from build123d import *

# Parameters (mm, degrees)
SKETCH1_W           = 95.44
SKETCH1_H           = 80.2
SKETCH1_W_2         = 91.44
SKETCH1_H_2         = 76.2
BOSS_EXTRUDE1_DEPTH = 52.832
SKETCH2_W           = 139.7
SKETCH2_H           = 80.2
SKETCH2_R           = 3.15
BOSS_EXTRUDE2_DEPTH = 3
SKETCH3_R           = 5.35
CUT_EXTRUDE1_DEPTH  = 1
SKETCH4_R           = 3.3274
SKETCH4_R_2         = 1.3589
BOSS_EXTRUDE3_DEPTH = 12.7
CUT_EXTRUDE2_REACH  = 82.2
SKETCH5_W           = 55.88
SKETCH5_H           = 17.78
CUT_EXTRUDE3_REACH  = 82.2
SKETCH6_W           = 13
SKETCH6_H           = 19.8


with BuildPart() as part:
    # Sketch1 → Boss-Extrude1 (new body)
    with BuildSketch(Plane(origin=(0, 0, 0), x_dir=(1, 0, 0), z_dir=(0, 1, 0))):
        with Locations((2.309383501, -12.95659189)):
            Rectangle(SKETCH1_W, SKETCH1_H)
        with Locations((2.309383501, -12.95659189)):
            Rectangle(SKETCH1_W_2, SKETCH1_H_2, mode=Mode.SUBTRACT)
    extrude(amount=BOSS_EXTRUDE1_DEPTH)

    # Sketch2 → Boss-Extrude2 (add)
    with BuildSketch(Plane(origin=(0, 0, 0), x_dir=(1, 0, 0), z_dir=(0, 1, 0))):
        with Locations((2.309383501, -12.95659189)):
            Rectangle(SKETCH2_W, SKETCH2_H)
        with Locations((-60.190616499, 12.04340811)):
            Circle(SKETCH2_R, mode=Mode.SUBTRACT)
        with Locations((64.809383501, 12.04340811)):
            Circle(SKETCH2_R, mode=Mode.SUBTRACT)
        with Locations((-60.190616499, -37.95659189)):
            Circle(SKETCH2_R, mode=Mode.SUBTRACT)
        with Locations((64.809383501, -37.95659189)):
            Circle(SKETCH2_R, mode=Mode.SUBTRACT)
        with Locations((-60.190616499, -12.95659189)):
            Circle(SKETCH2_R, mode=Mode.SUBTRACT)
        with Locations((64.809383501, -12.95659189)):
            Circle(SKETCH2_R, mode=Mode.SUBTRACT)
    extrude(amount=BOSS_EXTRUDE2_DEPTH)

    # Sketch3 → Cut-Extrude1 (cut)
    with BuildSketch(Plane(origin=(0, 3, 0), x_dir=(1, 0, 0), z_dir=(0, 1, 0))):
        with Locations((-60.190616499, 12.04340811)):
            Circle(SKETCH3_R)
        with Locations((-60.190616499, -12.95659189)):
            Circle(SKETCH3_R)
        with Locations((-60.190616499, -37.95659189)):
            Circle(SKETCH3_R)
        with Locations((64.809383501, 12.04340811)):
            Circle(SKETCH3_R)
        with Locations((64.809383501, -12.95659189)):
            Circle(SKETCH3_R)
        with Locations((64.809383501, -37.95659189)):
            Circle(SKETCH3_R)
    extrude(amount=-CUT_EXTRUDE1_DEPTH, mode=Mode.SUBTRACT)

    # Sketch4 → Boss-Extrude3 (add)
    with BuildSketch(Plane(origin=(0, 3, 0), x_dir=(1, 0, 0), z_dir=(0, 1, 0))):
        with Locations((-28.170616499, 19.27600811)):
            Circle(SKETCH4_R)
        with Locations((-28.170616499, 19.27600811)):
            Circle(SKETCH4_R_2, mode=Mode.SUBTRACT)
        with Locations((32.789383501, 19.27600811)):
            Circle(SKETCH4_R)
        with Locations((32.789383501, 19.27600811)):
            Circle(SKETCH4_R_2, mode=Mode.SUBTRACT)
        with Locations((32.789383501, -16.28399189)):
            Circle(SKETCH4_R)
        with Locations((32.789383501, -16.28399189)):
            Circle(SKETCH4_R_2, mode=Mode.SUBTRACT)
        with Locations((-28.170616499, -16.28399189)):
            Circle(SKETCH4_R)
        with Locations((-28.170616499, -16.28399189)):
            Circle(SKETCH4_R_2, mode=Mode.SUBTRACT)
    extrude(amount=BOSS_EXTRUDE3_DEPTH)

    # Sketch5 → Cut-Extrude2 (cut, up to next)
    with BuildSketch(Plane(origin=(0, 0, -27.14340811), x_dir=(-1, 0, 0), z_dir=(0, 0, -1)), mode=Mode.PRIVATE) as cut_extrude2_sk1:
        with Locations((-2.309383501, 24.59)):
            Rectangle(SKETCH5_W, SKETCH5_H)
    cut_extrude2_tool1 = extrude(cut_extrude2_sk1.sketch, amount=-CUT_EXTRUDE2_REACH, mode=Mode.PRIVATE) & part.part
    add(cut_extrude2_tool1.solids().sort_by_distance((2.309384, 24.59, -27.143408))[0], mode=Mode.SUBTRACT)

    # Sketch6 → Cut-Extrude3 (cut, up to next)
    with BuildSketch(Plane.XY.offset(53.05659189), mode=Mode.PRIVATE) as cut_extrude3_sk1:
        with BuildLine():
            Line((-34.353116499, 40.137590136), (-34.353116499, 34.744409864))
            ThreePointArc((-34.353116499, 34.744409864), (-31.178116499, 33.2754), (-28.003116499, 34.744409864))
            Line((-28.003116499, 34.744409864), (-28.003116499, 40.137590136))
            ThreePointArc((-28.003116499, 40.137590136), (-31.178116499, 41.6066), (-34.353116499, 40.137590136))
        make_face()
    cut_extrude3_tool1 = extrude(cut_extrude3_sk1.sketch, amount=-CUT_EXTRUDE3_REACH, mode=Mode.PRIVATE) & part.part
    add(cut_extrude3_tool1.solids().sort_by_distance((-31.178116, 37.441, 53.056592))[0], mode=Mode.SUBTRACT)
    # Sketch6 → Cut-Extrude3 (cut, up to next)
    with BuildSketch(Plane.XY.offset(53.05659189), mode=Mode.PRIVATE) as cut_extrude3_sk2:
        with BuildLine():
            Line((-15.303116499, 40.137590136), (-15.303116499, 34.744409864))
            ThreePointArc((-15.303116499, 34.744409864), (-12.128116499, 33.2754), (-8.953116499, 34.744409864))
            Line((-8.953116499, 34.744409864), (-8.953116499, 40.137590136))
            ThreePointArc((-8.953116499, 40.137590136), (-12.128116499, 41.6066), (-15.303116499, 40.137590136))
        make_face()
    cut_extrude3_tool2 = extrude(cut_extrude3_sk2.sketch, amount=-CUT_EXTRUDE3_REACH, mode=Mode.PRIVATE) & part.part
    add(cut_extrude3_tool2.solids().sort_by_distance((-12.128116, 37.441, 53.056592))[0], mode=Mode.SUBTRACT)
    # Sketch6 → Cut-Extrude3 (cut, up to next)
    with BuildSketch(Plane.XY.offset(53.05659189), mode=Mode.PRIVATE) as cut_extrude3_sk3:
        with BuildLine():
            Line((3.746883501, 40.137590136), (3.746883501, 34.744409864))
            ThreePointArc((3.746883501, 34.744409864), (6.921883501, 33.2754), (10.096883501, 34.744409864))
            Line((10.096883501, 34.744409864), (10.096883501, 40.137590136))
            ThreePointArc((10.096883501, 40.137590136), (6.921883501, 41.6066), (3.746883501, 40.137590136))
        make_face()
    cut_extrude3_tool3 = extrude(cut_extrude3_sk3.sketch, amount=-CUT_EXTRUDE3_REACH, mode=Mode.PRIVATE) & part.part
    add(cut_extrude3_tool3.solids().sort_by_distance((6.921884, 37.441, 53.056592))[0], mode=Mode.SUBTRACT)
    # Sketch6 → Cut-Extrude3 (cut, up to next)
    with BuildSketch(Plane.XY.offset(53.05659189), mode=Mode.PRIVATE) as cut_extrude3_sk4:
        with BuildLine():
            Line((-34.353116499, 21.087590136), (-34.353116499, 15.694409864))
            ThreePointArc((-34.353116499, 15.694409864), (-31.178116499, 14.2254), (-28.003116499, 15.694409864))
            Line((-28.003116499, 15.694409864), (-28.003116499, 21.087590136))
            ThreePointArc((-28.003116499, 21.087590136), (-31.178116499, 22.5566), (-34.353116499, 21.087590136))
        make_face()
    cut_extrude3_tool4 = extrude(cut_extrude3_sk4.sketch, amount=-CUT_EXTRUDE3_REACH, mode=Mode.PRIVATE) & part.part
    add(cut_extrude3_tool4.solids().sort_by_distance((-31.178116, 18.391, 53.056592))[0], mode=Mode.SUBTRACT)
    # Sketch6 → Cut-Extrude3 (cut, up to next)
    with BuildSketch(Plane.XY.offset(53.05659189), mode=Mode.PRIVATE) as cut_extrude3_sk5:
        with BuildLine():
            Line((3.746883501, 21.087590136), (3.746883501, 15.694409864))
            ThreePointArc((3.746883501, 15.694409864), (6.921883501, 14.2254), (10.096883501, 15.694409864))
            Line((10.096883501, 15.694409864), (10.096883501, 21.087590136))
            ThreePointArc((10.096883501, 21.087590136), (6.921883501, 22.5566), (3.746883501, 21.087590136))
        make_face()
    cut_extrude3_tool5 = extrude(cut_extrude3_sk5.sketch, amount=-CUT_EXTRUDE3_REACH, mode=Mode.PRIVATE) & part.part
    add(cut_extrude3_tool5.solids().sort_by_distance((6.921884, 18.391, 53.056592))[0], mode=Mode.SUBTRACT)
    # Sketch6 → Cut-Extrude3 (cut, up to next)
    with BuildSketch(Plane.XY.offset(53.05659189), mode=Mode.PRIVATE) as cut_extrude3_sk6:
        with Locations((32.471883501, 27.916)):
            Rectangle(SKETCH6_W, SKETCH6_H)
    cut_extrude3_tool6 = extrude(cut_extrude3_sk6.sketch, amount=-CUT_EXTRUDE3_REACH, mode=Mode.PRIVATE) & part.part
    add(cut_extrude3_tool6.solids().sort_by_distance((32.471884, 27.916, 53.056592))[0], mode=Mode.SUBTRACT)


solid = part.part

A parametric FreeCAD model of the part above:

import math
import FreeCAD as App
import Part
import Sketcher
from FreeCAD import Vector
Q = App.Units.Quantity


def add_polygon(sketch, points):
    """Adds a closed chain of lines whose ends are joined by coincident constraints."""
    first, n = sketch.GeometryCount, len(points)
    for a, b in zip(points, points[1:] + points[:1]):
        sketch.addGeometry(Part.LineSegment(App.Vector(*a, 0), App.Vector(*b, 0)), False)
    for i in range(n):
        sketch.addConstraint(Sketcher.Constraint("Coincident", first + i, 2, first + (i + 1) % n, 1))

doc = App.newDocument("Part")
params = doc.addObject("Spreadsheet::Sheet", "Params")
for row, (alias, value) in enumerate([
    ("sketch1_height", "3 in"),
    ("sketch1_width", "3.6 in"),
    ("pad1_length", "2.08 in"),
    ("sketch2_width", "5.5 in"),
    ("pad2_length", "3 mm"),
    ("pocket1_length", "1 mm"),
    ("sketch4_diameter", "0.262 in"),
    ("sketch4_diameter2", "0.107 in"),
    ("pad3_length", "0.5 in"),
    ("sketch5_width", "2.2 in"),
    ("sketch5_height", "0.7 in"),
    ("sketch6_radius", "0.164 in"),
    ("sketch7_radius", "0.164 in"),
    ("sketch8_radius", "0.164 in"),
    ("sketch9_radius", "0.164 in"),
    ("sketch10_radius", "0.164 in"),
], start=1):
    params.set(f"A{row}", alias)
    params.set(f"B{row}", "=" + value)
    params.setAlias(f"B{row}", alias)

body = doc.addObject("PartDesign::Body", "Body")

sketch1 = doc.addObject("Sketcher::SketchObject", "Sketch")
body.addObject(sketch1)
sketch1.AttachmentSupport = (doc.XZ_Plane, [""])
sketch1.MapMode = "FlatFace"
add_polygon(sketch1, [(-45, -27), (-45, 53), (50, 53), (50, -27)])
add_polygon(sketch1, [(48, 51), (-43, 51), (-43, -25), (48, -25)])
sketch1.addConstraint([
    Sketcher.Constraint("Vertical", 0),
    Sketcher.Constraint("Horizontal", 1),
    Sketcher.Constraint("Vertical", 2),
    Sketcher.Constraint("Horizontal", 3),
    Sketcher.Constraint("Horizontal", 4),
    Sketcher.Constraint("Vertical", 5),
    Sketcher.Constraint("Horizontal", 6),
    Sketcher.Constraint("Vertical", 7),
    Sketcher.Constraint("DistanceY", 5, 2, 5, 1, Q("3 in")),
    Sketcher.Constraint("DistanceX", 4, 2, 4, 1, Q("3.6 in")),
    Sketcher.Constraint("DistanceX", 1, 1, 1, 2, Q("95.44 mm")),
    Sketcher.Constraint("DistanceY", 0, 1, 0, 2, Q("80.2 mm")),
    Sketcher.Constraint("DistanceX", 0, 2, 4, 2, Q("2 mm")),
    Sketcher.Constraint("DistanceY", 4, 2, 0, 2, Q("2 mm")),
    Sketcher.Constraint("DistanceY", -1, 1, 0, 2, Q("53.056592 mm")),
    Sketcher.Constraint("DistanceX", 0, 2, -1, 1, Q("45.410616 mm")),
])
sketch1.setExpression("Constraints[16]", "Params.sketch1_height")
sketch1.setExpression("Constraints[17]", "Params.sketch1_width")
pad1 = doc.addObject("PartDesign::Pad", "Pad")
body.addObject(pad1)
pad1.Profile = sketch1
pad1.setExpression("Length", "Params.pad1_length")
pad1.Reversed = True

sketch2 = doc.addObject("Sketcher::SketchObject", "Sketch001")
body.addObject(sketch2)
sketch2.AttachmentSupport = (doc.XZ_Plane, [""])
sketch2.MapMode = "FlatFace"
add_polygon(sketch2, [(-67.5, -27.1), (-67.5, 53.1), (72.2, 53.1), (72.2, -27.1)])
sketch2.addGeometry(Part.Circle(Vector(-60.2, 38, 0), Vector(0, 0, 1), 3.1), False)
sketch2.addGeometry(Part.Circle(Vector(64.8, 38, 0), Vector(0, 0, 1), 3.1), False)
sketch2.addGeometry(Part.Circle(Vector(-60.2, 13, 0), Vector(0, 0, 1), 3.1), False)
sketch2.addGeometry(Part.Circle(Vector(-60.2, -12, 0), Vector(0, 0, 1), 3.1), False)
sketch2.addGeometry(Part.Circle(Vector(64.8, 13, 0), Vector(0, 0, 1), 3.1), False)
sketch2.addGeometry(Part.Circle(Vector(64.8, -12, 0), Vector(0, 0, 1), 3.1), False)
sketch2.addConstraint([
    Sketcher.Constraint("Vertical", 0),
    Sketcher.Constraint("Horizontal", 1),
    Sketcher.Constraint("Vertical", 2),
    Sketcher.Constraint("Horizontal", 3),
    Sketcher.Constraint("Equal", 4, 5),
    Sketcher.Constraint("Equal", 5, 6),
    Sketcher.Constraint("Equal", 6, 7),
    Sketcher.Constraint("Equal", 7, 8),
    Sketcher.Constraint("Equal", 8, 9),
    Sketcher.Constraint("Horizontal", 4, 3, 5, 3),
    Sketcher.Constraint("Horizontal", 6, 3, 8, 3),
    Sketcher.Constraint("Horizontal", 7, 3, 9, 3),
    Sketcher.Constraint("Vertical", 4, 3, 6, 3),
    Sketcher.Constraint("Vertical", 6, 3, 7, 3),
    Sketcher.Constraint("Vertical", 5, 3, 8, 3),
    Sketcher.Constraint("Vertical", 8, 3, 9, 3),
    Sketcher.Constraint("DistanceX", 1, 1, 1, 2, Q("5.5 in")),
    Sketcher.Constraint("Diameter", 4, Q("6.3 mm")),
    Sketcher.Constraint("DistanceY", 0, 1, 0, 2, Q("80.2 mm")),
    Sketcher.Constraint("DistanceX", 4, 3, 5, 3, Q("125 mm")),
    Sketcher.Constraint("DistanceY", 6, 3, 4, 3, Q("25 mm")),
    Sketcher.Constraint("DistanceY", 7, 3, 6, 3, Q("25 mm")),
    Sketcher.Constraint("DistanceX", 0, 2, 4, 3, Q("7.35 mm")),
    Sketcher.Constraint("DistanceY", 4, 3, 0, 2, Q("15.1 mm")),
    Sketcher.Constraint("DistanceY", -1, 1, 4, 3, Q("37.956592 mm")),
    Sketcher.Constraint("DistanceX", 4, 3, -1, 1, Q("60.190616 mm")),
])
sketch2.setExpression("Constraints[20]", "Params.sketch2_width")
pad2 = doc.addObject("PartDesign::Pad", "Pad001")
body.addObject(pad2)
pad2.Profile = sketch2
pad2.setExpression("Length", "Params.pad2_length")
pad2.Reversed = True

sketch3 = doc.addObject("Sketcher::SketchObject", "Sketch002")
body.addObject(sketch3)
sketch3.AttachmentSupport = (doc.XZ_Plane, [""])
sketch3.MapMode = "FlatFace"
sketch3.AttachmentOffset = App.Placement(Vector(0, 0, -3), App.Rotation())
sketch3.addGeometry([
    Part.Circle(Vector(-60, -12, 0), Vector(0, 0, 1), 5),
    Part.Circle(Vector(-60, 13, 0), Vector(0, 0, 1), 5),
    Part.Circle(Vector(-60, 38, 0), Vector(0, 0, 1), 5),
    Part.Circle(Vector(65, -12, 0), Vector(0, 0, 1), 5),
    Part.Circle(Vector(65, 13, 0), Vector(0, 0, 1), 5),
    Part.Circle(Vector(65, 38, 0), Vector(0, 0, 1), 5),
], False)
sketch3.addConstraint([
    Sketcher.Constraint("Equal", 0, 1),
    Sketcher.Constraint("Equal", 1, 2),
    Sketcher.Constraint("Equal", 2, 3),
    Sketcher.Constraint("Equal", 3, 4),
    Sketcher.Constraint("Equal", 4, 5),
    Sketcher.Constraint("Horizontal", 0, 3, 3, 3),
    Sketcher.Constraint("Horizontal", 1, 3, 4, 3),
    Sketcher.Constraint("Horizontal", 2, 3, 5, 3),
    Sketcher.Constraint("Vertical", 0, 3, 1, 3),
    Sketcher.Constraint("Vertical", 1, 3, 2, 3),
    Sketcher.Constraint("Vertical", 3, 3, 4, 3),
    Sketcher.Constraint("Vertical", 4, 3, 5, 3),
    Sketcher.Constraint("Diameter", 0, Q("10.7 mm")),
    Sketcher.Constraint("DistanceY", 0, 3, 1, 3, Q("25 mm")),
    Sketcher.Constraint("DistanceY", 1, 3, 2, 3, Q("25 mm")),
    Sketcher.Constraint("DistanceX", 0, 3, 3, 3, Q("125 mm")),
    Sketcher.Constraint("DistanceY", 0, 3, -1, 1, Q("12.043408 mm")),
    Sketcher.Constraint("DistanceX", 0, 3, -1, 1, Q("60.190616 mm")),
])
pocket1 = doc.addObject("PartDesign::Pocket", "Pocket")
body.addObject(pocket1)
pocket1.Profile = sketch3
pocket1.setExpression("Length", "Params.pocket1_length")
pocket1.Reversed = True

sketch4 = doc.addObject("Sketcher::SketchObject", "Sketch003")
body.addObject(sketch4)
sketch4.AttachmentSupport = (doc.XZ_Plane, [""])
sketch4.MapMode = "FlatFace"
sketch4.AttachmentOffset = App.Placement(Vector(0, 0, -3), App.Rotation())
sketch4.addGeometry([
    Part.Circle(Vector(-28.2, -19.3, 0), Vector(0, 0, 1), 3.3),
    Part.Circle(Vector(-28.2, -19.3, 0), Vector(0, 0, 1), 1.4),
    Part.Circle(Vector(32.8, -19.3, 0), Vector(0, 0, 1), 3.3),
    Part.Circle(Vector(32.8, -19.3, 0), Vector(0, 0, 1), 1.4),
    Part.Circle(Vector(32.8, 16.3, 0), Vector(0, 0, 1), 3.3),
    Part.Circle(Vector(32.8, 16.3, 0), Vector(0, 0, 1), 1.4),
    Part.Circle(Vector(-28.2, 16.3, 0), Vector(0, 0, 1), 3.3),
    Part.Circle(Vector(-28.2, 16.3, 0), Vector(0, 0, 1), 1.4),
], False)
sketch4.addConstraint([
    Sketcher.Constraint("Coincident", 1, 3, 0, 3),
    Sketcher.Constraint("Coincident", 3, 3, 2, 3),
    Sketcher.Constraint("Coincident", 5, 3, 4, 3),
    Sketcher.Constraint("Coincident", 7, 3, 6, 3),
    Sketcher.Constraint("Equal", 0, 2),
    Sketcher.Constraint("Equal", 1, 3),
    Sketcher.Constraint("Equal", 2, 4),
    Sketcher.Constraint("Equal", 3, 5),
    Sketcher.Constraint("Equal", 4, 6),
    Sketcher.Constraint("Equal", 5, 7),
    Sketcher.Constraint("Horizontal", 1, 3, 2, 3),
    Sketcher.Constraint("Horizontal", 5, 3, 6, 3),
    Sketcher.Constraint("Vertical", 3, 3, 4, 3),
    Sketcher.Constraint("Vertical", 1, 3, 6, 3),
    Sketcher.Constraint("Diameter", 0, Q("0.262 in")),
    Sketcher.Constraint("Diameter", 1, Q("0.107 in")),
    Sketcher.Constraint("DistanceX", 0, 3, 2, 3, Q("2.4 in")),
    Sketcher.Constraint("DistanceY", 2, 3, 4, 3, Q("1.4 in")),
    Sketcher.Constraint("DistanceY", 0, 3, -1, 1, Q("19.276008 mm")),
    Sketcher.Constraint("DistanceX", 0, 3, -1, 1, Q("28.170616 mm")),
])
sketch4.setExpression("Constraints[14]", "Params.sketch4_diameter")
sketch4.setExpression("Constraints[15]", "Params.sketch4_diameter2")
pad3 = doc.addObject("PartDesign::Pad", "Pad002")
body.addObject(pad3)
pad3.Profile = sketch4
pad3.setExpression("Length", "Params.pad3_length")
pad3.Reversed = True

sketch5 = doc.addObject("Sketcher::SketchObject", "Sketch004")
body.addObject(sketch5)
sketch5.AttachmentSupport = (doc.XY_Plane, [""])
sketch5.MapMode = "FlatFace"
sketch5.AttachmentOffset = App.Placement(Vector(0, 0, -27.143408), App.Rotation())
add_polygon(sketch5, [(30, 33), (30, 16), (-26, 16), (-26, 33)])
sketch5.addConstraint([
    Sketcher.Constraint("Vertical", 0),
    Sketcher.Constraint("Horizontal", 1),
    Sketcher.Constraint("Vertical", 2),
    Sketcher.Constraint("Horizontal", 3),
    Sketcher.Constraint("DistanceX", 1, 2, 1, 1, Q("2.2 in")),
    Sketcher.Constraint("DistanceY", 0, 2, 0, 1, Q("0.7 in")),
    Sketcher.Constraint("DistanceY", -1, 1, 0, 2, Q("15.7 mm")),
    Sketcher.Constraint("DistanceX", -1, 1, 0, 2, Q("30.249384 mm")),
])
sketch5.setExpression("Constraints[8]", "Params.sketch5_width")
sketch5.setExpression("Constraints[9]", "Params.sketch5_height")
pocket2 = doc.addObject("PartDesign::Pocket", "Pocket001")
body.addObject(pocket2)
pocket2.Profile = sketch5
pocket2.Type = "UpToFirst"
pocket2.Reversed = True

sketch6 = doc.addObject("Sketcher::SketchObject", "Sketch005")
body.addObject(sketch6)
sketch6.AttachmentSupport = (doc.XY_Plane, [""])
sketch6.MapMode = "FlatFace"
sketch6.AttachmentOffset = App.Placement(Vector(0, 0, 53.056592), App.Rotation())
sketch6.addGeometry([
    Part.LineSegment(Vector(-34.4, 40.1, 0), Vector(-34.4, 34.7, 0)),
    Part.ArcOfCircle(Part.Circle(Vector(-31.2, 37.4, 0), Vector(0, 0, 1), 4.2), math.radians(-140), math.radians(-40)),
    Part.LineSegment(Vector(-28, 34.7, 0), Vector(-28, 40.1, 0)),
    Part.ArcOfCircle(Part.Circle(Vector(-31.2, 37.4, 0), Vector(0, 0, 1), 4.2), math.radians(40), math.radians(140)),
], False)
sketch6.addConstraint([
    Sketcher.Constraint("Coincident", 0, 2, 1, 1),
    Sketcher.Constraint("Coincident", 1, 2, 2, 1),
    Sketcher.Constraint("Coincident", 2, 2, 3, 1),
    Sketcher.Constraint("Coincident", 3, 2, 0, 1),
    Sketcher.Constraint("Vertical", 0),
    Sketcher.Constraint("Vertical", 2),
    Sketcher.Constraint("Coincident", 3, 3, 1, 3),
    Sketcher.Constraint("Equal", 1, 3),
    Sketcher.Constraint("Horizontal", 0, 2, 1, 2),
    Sketcher.Constraint("Radius", 1, Q("0.164 in")),
    Sketcher.Constraint("DistanceX", 0, 2, 1, 2, Q("0.25 in")),
    Sketcher.Constraint("DistanceY", -1, 1, 1, 3, Q("37.441 mm")),
    Sketcher.Constraint("DistanceX", 1, 3, -1, 1, Q("31.178116 mm")),
])
sketch6.setExpression("Constraints[9]", "Params.sketch6_radius")
pocket3 = doc.addObject("PartDesign::Pocket", "Pocket002")
body.addObject(pocket3)
pocket3.Profile = sketch6
pocket3.Type = "UpToFirst"

sketch7 = doc.addObject("Sketcher::SketchObject", "Sketch006")
body.addObject(sketch7)
sketch7.AttachmentSupport = (doc.XY_Plane, [""])
sketch7.MapMode = "FlatFace"
sketch7.AttachmentOffset = App.Placement(Vector(0, 0, 53.056592), App.Rotation())
sketch7.addGeometry([
    Part.LineSegment(Vector(-15.3, 40.1, 0), Vector(-15.3, 34.7, 0)),
    Part.ArcOfCircle(Part.Circle(Vector(-12.1, 37.4, 0), Vector(0, 0, 1), 4.2), math.radians(-140), math.radians(-40)),
    Part.LineSegment(Vector(-9, 34.7, 0), Vector(-9, 40.1, 0)),
    Part.ArcOfCircle(Part.Circle(Vector(-12.1, 37.4, 0), Vector(0, 0, 1), 4.2), math.radians(40), math.radians(140)),
], False)
sketch7.addConstraint([
    Sketcher.Constraint("Coincident", 0, 2, 1, 1),
    Sketcher.Constraint("Coincident", 1, 2, 2, 1),
    Sketcher.Constraint("Coincident", 2, 2, 3, 1),
    Sketcher.Constraint("Coincident", 3, 2, 0, 1),
    Sketcher.Constraint("Vertical", 0),
    Sketcher.Constraint("Vertical", 2),
    Sketcher.Constraint("Coincident", 3, 3, 1, 3),
    Sketcher.Constraint("Equal", 1, 3),
    Sketcher.Constraint("Horizontal", 0, 2, 1, 2),
    Sketcher.Constraint("Radius", 1, Q("0.164 in")),
    Sketcher.Constraint("DistanceX", 0, 2, 1, 2, Q("0.25 in")),
    Sketcher.Constraint("DistanceY", -1, 1, 1, 3, Q("37.441 mm")),
    Sketcher.Constraint("DistanceX", 1, 3, -1, 1, Q("12.128116 mm")),
])
sketch7.setExpression("Constraints[9]", "Params.sketch7_radius")
pocket4 = doc.addObject("PartDesign::Pocket", "Pocket003")
body.addObject(pocket4)
pocket4.Profile = sketch7
pocket4.Type = "UpToFirst"

sketch8 = doc.addObject("Sketcher::SketchObject", "Sketch007")
body.addObject(sketch8)
sketch8.AttachmentSupport = (doc.XY_Plane, [""])
sketch8.MapMode = "FlatFace"
sketch8.AttachmentOffset = App.Placement(Vector(0, 0, 53.056592), App.Rotation())
sketch8.addGeometry([
    Part.LineSegment(Vector(3.7, 40.1, 0), Vector(3.7, 34.7, 0)),
    Part.ArcOfCircle(Part.Circle(Vector(6.9, 37.4, 0), Vector(0, 0, 1), 4.2), math.radians(-140), math.radians(-40)),
    Part.LineSegment(Vector(10.1, 34.7, 0), Vector(10.1, 40.1, 0)),
    Part.ArcOfCircle(Part.Circle(Vector(6.9, 37.4, 0), Vector(0, 0, 1), 4.2), math.radians(40), math.radians(140)),
], False)
sketch8.addConstraint([
    Sketcher.Constraint("Coincident", 0, 2, 1, 1),
    Sketcher.Constraint("Coincident", 1, 2, 2, 1),
    Sketcher.Constraint("Coincident", 2, 2, 3, 1),
    Sketcher.Constraint("Coincident", 3, 2, 0, 1),
    Sketcher.Constraint("Vertical", 0),
    Sketcher.Constraint("Vertical", 2),
    Sketcher.Constraint("Coincident", 3, 3, 1, 3),
    Sketcher.Constraint("Equal", 1, 3),
    Sketcher.Constraint("Horizontal", 0, 2, 1, 2),
    Sketcher.Constraint("Radius", 1, Q("0.164 in")),
    Sketcher.Constraint("DistanceX", 0, 2, 1, 2, Q("0.25 in")),
    Sketcher.Constraint("DistanceY", -1, 1, 1, 3, Q("37.441 mm")),
    Sketcher.Constraint("DistanceX", -1, 1, 1, 3, Q("6.921884 mm")),
])
sketch8.setExpression("Constraints[9]", "Params.sketch8_radius")
pocket5 = doc.addObject("PartDesign::Pocket", "Pocket004")
body.addObject(pocket5)
pocket5.Profile = sketch8
pocket5.Type = "UpToFirst"

sketch9 = doc.addObject("Sketcher::SketchObject", "Sketch008")
body.addObject(sketch9)
sketch9.AttachmentSupport = (doc.XY_Plane, [""])
sketch9.MapMode = "FlatFace"
sketch9.AttachmentOffset = App.Placement(Vector(0, 0, 53.056592), App.Rotation())
sketch9.addGeometry([
    Part.LineSegment(Vector(-34.4, 21.1, 0), Vector(-34.4, 15.7, 0)),
    Part.ArcOfCircle(Part.Circle(Vector(-31.2, 18.4, 0), Vector(0, 0, 1), 4.2), math.radians(-140), math.radians(-40)),
    Part.LineSegment(Vector(-28, 15.7, 0), Vector(-28, 21.1, 0)),
    Part.ArcOfCircle(Part.Circle(Vector(-31.2, 18.4, 0), Vector(0, 0, 1), 4.2), math.radians(40), math.radians(140)),
], False)
sketch9.addConstraint([
    Sketcher.Constraint("Coincident", 0, 2, 1, 1),
    Sketcher.Constraint("Coincident", 1, 2, 2, 1),
    Sketcher.Constraint("Coincident", 2, 2, 3, 1),
    Sketcher.Constraint("Coincident", 3, 2, 0, 1),
    Sketcher.Constraint("Vertical", 0),
    Sketcher.Constraint("Vertical", 2),
    Sketcher.Constraint("Coincident", 3, 3, 1, 3),
    Sketcher.Constraint("Equal", 1, 3),
    Sketcher.Constraint("Horizontal", 0, 2, 1, 2),
    Sketcher.Constraint("Radius", 1, Q("0.164 in")),
    Sketcher.Constraint("DistanceX", 0, 2, 1, 2, Q("0.25 in")),
    Sketcher.Constraint("DistanceY", -1, 1, 1, 3, Q("18.391 mm")),
    Sketcher.Constraint("DistanceX", 1, 3, -1, 1, Q("31.178116 mm")),
])
sketch9.setExpression("Constraints[9]", "Params.sketch9_radius")
pocket6 = doc.addObject("PartDesign::Pocket", "Pocket005")
body.addObject(pocket6)
pocket6.Profile = sketch9
pocket6.Type = "UpToFirst"

sketch10 = doc.addObject("Sketcher::SketchObject", "Sketch009")
body.addObject(sketch10)
sketch10.AttachmentSupport = (doc.XY_Plane, [""])
sketch10.MapMode = "FlatFace"
sketch10.AttachmentOffset = App.Placement(Vector(0, 0, 53.056592), App.Rotation())
sketch10.addGeometry([
    Part.LineSegment(Vector(3.7, 21.1, 0), Vector(3.7, 15.7, 0)),
    Part.ArcOfCircle(Part.Circle(Vector(6.9, 18.4, 0), Vector(0, 0, 1), 4.2), math.radians(-140), math.radians(-40)),
    Part.LineSegment(Vector(10.1, 15.7, 0), Vector(10.1, 21.1, 0)),
    Part.ArcOfCircle(Part.Circle(Vector(6.9, 18.4, 0), Vector(0, 0, 1), 4.2), math.radians(40), math.radians(140)),
], False)
sketch10.addConstraint([
    Sketcher.Constraint("Coincident", 0, 2, 1, 1),
    Sketcher.Constraint("Coincident", 1, 2, 2, 1),
    Sketcher.Constraint("Coincident", 2, 2, 3, 1),
    Sketcher.Constraint("Coincident", 3, 2, 0, 1),
    Sketcher.Constraint("Vertical", 0),
    Sketcher.Constraint("Vertical", 2),
    Sketcher.Constraint("Coincident", 3, 3, 1, 3),
    Sketcher.Constraint("Equal", 1, 3),
    Sketcher.Constraint("Horizontal", 0, 2, 1, 2),
    Sketcher.Constraint("Radius", 1, Q("0.164 in")),
    Sketcher.Constraint("DistanceX", 0, 2, 1, 2, Q("0.25 in")),
    Sketcher.Constraint("DistanceY", -1, 1, 1, 3, Q("18.391 mm")),
    Sketcher.Constraint("DistanceX", -1, 1, 1, 3, Q("6.921884 mm")),
])
sketch10.setExpression("Constraints[9]", "Params.sketch10_radius")
pocket7 = doc.addObject("PartDesign::Pocket", "Pocket006")
body.addObject(pocket7)
pocket7.Profile = sketch10
pocket7.Type = "UpToFirst"

sketch11 = doc.addObject("Sketcher::SketchObject", "Sketch010")
body.addObject(sketch11)
sketch11.AttachmentSupport = (doc.XY_Plane, [""])
sketch11.MapMode = "FlatFace"
sketch11.AttachmentOffset = App.Placement(Vector(0, 0, 53.056592), App.Rotation())
add_polygon(sketch11, [(26, 38), (26, 18), (39, 18), (39, 38)])
sketch11.addConstraint([
    Sketcher.Constraint("Vertical", 0),
    Sketcher.Constraint("Horizontal", 1),
    Sketcher.Constraint("Vertical", 2),
    Sketcher.Constraint("Horizontal", 3),
    Sketcher.Constraint("DistanceX", 1, 1, 1, 2, Q("13 mm")),
    Sketcher.Constraint("DistanceY", 0, 2, 0, 1, Q("19.8 mm")),
    Sketcher.Constraint("DistanceY", -1, 1, 0, 2, Q("18.016 mm")),
    Sketcher.Constraint("DistanceX", -1, 1, 0, 2, Q("25.971884 mm")),
])
pocket8 = doc.addObject("PartDesign::Pocket", "Pocket007")
body.addObject(pocket8)
pocket8.Profile = sketch11
pocket8.Type = "UpToFirst"

doc.recompute()
